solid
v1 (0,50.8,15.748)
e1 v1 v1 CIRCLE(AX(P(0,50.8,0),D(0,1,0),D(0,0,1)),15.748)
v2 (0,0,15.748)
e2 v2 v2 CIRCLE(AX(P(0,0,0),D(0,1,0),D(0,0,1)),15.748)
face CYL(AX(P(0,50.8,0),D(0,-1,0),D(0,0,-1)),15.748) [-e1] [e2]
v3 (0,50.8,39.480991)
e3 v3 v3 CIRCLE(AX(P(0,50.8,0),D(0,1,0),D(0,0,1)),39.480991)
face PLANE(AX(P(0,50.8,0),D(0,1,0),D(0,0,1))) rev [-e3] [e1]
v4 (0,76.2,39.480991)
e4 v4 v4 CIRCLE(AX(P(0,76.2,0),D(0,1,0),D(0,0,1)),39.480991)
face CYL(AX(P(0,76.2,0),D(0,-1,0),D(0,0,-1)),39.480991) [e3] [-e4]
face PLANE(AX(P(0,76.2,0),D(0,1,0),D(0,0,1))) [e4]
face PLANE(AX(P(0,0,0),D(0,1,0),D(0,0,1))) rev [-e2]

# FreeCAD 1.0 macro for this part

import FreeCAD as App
import Part
import Sketcher
from FreeCAD import Vector
Q = App.Units.Quantity

doc = App.newDocument("Part")
params = doc.addObject("Spreadsheet::Sheet", "Params")
for row, (alias, value) in enumerate([
    ("sketch1_diameter", "1.24 in"),
    ("pad1_length", "2 in"),
    ("pad2_length", "1 in"),
], start=1):
    params.set(f"A{row}", alias)
    params.set(f"B{row}", "=" + value)
    params.setAlias(f"B{row}", alias)

body = doc.addObject("PartDesign::Body", "Body")

# Sketch on XZ plane
sketch1 = body.newObject("Sketcher::SketchObject", "Sketch")
sketch1.AttachmentSupport = (doc.getObject("XZ_Plane"), [""])
sketch1.MapMode = "FlatFace"
sketch1.addGeometry(Part.Circle(Vector(0, 0, 0), Vector(0, 0, 1), 16), False)
sketch1.addConstraint([
    Sketcher.Constraint("Coincident", 0, 3, -1, 1),
    Sketcher.Constraint("Diameter", 0, Q("1.24 in")),
])
sketch1.setExpression("Constraints[1]", "Params.sketch1_diameter")
pad1 = body.newObject("PartDesign::Pad", "Pad")
pad1.Profile = sketch1
pad1.setExpression("Length", "Params.pad1_length")
pad1.Reversed = True

# Sketch on XZ plane
sketch2 = body.newObject("Sketcher::SketchObject", "Sketch001")
sketch2.AttachmentSupport = (doc.getObject("XZ_Plane"), [""])
sketch2.MapMode = "FlatFace"
sketch2.AttachmentOffset = App.Placement(Vector(0, 0, -2 * 25.4), App.Rotation())
sketch2.addGeometry(Part.Circle(Vector(0, 0, 0), Vector(0, 0, 1), 39), False)
sketch2.addConstraint([
    Sketcher.Constraint("Coincident", 0, 3, -1, 1),
    Sketcher.Constraint("Diameter", 0, 78.961981),
])
pad2 = body.newObject("PartDesign::Pad", "Pad001")
pad2.Profile = sketch2
pad2.setExpression("Length", "Params.pad2_length")
pad2.Reversed = True

doc.recompute()
